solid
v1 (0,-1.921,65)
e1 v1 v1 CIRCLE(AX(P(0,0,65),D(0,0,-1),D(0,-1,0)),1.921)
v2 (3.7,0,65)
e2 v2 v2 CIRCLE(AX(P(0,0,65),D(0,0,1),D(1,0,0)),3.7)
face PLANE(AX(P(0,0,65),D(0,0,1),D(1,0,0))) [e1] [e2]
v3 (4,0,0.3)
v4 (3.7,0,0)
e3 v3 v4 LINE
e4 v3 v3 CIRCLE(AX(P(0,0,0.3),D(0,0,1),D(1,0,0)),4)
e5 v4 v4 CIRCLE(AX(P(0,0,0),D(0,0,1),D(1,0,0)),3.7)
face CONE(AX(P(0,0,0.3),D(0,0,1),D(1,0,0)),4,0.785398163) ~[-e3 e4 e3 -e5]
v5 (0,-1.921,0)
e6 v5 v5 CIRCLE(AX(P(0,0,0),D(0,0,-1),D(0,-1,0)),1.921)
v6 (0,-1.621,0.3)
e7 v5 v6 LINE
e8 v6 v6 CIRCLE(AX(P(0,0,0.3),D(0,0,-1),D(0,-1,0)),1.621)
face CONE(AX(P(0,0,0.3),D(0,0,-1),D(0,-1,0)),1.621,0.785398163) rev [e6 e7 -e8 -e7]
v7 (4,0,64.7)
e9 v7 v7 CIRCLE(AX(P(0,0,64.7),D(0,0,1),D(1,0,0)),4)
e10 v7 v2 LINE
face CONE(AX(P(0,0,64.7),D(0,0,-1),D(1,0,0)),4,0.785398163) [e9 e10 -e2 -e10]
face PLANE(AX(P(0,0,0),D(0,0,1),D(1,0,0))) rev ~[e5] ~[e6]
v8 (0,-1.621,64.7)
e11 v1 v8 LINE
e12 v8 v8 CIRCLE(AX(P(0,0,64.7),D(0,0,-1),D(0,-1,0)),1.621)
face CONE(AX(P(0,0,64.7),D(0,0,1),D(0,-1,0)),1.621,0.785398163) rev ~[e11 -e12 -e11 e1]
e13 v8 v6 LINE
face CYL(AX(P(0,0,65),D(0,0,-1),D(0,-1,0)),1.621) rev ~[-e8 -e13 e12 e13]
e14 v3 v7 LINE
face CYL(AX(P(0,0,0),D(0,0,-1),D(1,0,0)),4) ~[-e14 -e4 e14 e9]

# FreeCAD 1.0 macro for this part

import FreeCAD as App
import Part
import Sketcher


def edges_at(feature, points):
    """Names of the edges that pass closest to the given points."""
    edges = feature.Shape.Edges
    near = lambda p: min(range(len(edges)), key=lambda i: edges[i].distToShape(Part.Vertex(*p))[0])
    return sorted({f"Edge{near(p) + 1}" for p in points})

doc = App.newDocument("Part")
params = doc.addObject("Spreadsheet::Sheet", "Params")
for row, (alias, value) in enumerate([
    ("sketch1_diameter", "8 mm"),
    ("pad1_length", "65 mm"),
    ("hole_diameter", "3.242 mm"),
    ("chamfer_size", "0.3 mm"),
], start=1):
    params.set(f"A{row}", alias)
    params.set(f"B{row}", "=" + value)
    params.setAlias(f"B{row}", alias)

body = doc.addObject("PartDesign::Body", "Body")

sketch1 = doc.addObject("Sketcher::SketchObject", "Sketch")
body.addObject(sketch1)
sketch1.AttachmentSupport = (doc.XY_Plane, [""])
sketch1.MapMode = "FlatFace"
sketch1.addGeometry(Part.Circle(App.Vector(0, 0, 0), App.Vector(0, 0, 1), 4), False)
sketch1.addConstraint([
    Sketcher.Constraint("Coincident", 0, 3, -1, 1),
    Sketcher.Constraint("Diameter", 0, 8.0),
])
sketch1.setExpression("Constraints[1]", "Params.sketch1_diameter")
pad1 = doc.addObject("PartDesign::Pad", "Pad")
body.addObject(pad1)
pad1.Profile = sketch1
pad1.setExpression("Length", "Params.pad1_length")

sketch2 = doc.addObject("Sketcher::SketchObject", "Sketch001")
body.addObject(sketch2)
sketch2.AttachmentSupport = (doc.XY_Plane, [""])
sketch2.MapMode = "FlatFace"
sketch2.AttachmentOffset = App.Placement(App.Vector(0, 0, 65), App.Rotation())
sketch2.addGeometry(Part.Circle(App.Vector(0, 0, 0), App.Vector(0, 0, 1), 1.6), False)
sketch2.addConstraint([
    Sketcher.Constraint("Coincident", 0, 3, -1, 1),
    Sketcher.Constraint("Diameter", 0, 3.242),
])
doc.recompute()
hole = doc.addObject("PartDesign::Hole", "Hole")
body.addObject(hole)
hole.Profile = sketch2
hole.ThreadType = "None"
hole.setExpression("Diameter", "Params.hole_diameter")
hole.DepthType = "ThroughAll"
doc.recompute()

chamfer = doc.addObject("PartDesign::Chamfer", "Chamfer")
body.addObject(chamfer)
chamfer.Base = (hole, edges_at(hole, [
    (-4, 0, 65),
    (0, 1.621, 65),
    (0, 1.621, 0),
    (-4, 0, 0),
]))
chamfer.setExpression("Size", "Params.chamfer_size")

doc.recompute()
